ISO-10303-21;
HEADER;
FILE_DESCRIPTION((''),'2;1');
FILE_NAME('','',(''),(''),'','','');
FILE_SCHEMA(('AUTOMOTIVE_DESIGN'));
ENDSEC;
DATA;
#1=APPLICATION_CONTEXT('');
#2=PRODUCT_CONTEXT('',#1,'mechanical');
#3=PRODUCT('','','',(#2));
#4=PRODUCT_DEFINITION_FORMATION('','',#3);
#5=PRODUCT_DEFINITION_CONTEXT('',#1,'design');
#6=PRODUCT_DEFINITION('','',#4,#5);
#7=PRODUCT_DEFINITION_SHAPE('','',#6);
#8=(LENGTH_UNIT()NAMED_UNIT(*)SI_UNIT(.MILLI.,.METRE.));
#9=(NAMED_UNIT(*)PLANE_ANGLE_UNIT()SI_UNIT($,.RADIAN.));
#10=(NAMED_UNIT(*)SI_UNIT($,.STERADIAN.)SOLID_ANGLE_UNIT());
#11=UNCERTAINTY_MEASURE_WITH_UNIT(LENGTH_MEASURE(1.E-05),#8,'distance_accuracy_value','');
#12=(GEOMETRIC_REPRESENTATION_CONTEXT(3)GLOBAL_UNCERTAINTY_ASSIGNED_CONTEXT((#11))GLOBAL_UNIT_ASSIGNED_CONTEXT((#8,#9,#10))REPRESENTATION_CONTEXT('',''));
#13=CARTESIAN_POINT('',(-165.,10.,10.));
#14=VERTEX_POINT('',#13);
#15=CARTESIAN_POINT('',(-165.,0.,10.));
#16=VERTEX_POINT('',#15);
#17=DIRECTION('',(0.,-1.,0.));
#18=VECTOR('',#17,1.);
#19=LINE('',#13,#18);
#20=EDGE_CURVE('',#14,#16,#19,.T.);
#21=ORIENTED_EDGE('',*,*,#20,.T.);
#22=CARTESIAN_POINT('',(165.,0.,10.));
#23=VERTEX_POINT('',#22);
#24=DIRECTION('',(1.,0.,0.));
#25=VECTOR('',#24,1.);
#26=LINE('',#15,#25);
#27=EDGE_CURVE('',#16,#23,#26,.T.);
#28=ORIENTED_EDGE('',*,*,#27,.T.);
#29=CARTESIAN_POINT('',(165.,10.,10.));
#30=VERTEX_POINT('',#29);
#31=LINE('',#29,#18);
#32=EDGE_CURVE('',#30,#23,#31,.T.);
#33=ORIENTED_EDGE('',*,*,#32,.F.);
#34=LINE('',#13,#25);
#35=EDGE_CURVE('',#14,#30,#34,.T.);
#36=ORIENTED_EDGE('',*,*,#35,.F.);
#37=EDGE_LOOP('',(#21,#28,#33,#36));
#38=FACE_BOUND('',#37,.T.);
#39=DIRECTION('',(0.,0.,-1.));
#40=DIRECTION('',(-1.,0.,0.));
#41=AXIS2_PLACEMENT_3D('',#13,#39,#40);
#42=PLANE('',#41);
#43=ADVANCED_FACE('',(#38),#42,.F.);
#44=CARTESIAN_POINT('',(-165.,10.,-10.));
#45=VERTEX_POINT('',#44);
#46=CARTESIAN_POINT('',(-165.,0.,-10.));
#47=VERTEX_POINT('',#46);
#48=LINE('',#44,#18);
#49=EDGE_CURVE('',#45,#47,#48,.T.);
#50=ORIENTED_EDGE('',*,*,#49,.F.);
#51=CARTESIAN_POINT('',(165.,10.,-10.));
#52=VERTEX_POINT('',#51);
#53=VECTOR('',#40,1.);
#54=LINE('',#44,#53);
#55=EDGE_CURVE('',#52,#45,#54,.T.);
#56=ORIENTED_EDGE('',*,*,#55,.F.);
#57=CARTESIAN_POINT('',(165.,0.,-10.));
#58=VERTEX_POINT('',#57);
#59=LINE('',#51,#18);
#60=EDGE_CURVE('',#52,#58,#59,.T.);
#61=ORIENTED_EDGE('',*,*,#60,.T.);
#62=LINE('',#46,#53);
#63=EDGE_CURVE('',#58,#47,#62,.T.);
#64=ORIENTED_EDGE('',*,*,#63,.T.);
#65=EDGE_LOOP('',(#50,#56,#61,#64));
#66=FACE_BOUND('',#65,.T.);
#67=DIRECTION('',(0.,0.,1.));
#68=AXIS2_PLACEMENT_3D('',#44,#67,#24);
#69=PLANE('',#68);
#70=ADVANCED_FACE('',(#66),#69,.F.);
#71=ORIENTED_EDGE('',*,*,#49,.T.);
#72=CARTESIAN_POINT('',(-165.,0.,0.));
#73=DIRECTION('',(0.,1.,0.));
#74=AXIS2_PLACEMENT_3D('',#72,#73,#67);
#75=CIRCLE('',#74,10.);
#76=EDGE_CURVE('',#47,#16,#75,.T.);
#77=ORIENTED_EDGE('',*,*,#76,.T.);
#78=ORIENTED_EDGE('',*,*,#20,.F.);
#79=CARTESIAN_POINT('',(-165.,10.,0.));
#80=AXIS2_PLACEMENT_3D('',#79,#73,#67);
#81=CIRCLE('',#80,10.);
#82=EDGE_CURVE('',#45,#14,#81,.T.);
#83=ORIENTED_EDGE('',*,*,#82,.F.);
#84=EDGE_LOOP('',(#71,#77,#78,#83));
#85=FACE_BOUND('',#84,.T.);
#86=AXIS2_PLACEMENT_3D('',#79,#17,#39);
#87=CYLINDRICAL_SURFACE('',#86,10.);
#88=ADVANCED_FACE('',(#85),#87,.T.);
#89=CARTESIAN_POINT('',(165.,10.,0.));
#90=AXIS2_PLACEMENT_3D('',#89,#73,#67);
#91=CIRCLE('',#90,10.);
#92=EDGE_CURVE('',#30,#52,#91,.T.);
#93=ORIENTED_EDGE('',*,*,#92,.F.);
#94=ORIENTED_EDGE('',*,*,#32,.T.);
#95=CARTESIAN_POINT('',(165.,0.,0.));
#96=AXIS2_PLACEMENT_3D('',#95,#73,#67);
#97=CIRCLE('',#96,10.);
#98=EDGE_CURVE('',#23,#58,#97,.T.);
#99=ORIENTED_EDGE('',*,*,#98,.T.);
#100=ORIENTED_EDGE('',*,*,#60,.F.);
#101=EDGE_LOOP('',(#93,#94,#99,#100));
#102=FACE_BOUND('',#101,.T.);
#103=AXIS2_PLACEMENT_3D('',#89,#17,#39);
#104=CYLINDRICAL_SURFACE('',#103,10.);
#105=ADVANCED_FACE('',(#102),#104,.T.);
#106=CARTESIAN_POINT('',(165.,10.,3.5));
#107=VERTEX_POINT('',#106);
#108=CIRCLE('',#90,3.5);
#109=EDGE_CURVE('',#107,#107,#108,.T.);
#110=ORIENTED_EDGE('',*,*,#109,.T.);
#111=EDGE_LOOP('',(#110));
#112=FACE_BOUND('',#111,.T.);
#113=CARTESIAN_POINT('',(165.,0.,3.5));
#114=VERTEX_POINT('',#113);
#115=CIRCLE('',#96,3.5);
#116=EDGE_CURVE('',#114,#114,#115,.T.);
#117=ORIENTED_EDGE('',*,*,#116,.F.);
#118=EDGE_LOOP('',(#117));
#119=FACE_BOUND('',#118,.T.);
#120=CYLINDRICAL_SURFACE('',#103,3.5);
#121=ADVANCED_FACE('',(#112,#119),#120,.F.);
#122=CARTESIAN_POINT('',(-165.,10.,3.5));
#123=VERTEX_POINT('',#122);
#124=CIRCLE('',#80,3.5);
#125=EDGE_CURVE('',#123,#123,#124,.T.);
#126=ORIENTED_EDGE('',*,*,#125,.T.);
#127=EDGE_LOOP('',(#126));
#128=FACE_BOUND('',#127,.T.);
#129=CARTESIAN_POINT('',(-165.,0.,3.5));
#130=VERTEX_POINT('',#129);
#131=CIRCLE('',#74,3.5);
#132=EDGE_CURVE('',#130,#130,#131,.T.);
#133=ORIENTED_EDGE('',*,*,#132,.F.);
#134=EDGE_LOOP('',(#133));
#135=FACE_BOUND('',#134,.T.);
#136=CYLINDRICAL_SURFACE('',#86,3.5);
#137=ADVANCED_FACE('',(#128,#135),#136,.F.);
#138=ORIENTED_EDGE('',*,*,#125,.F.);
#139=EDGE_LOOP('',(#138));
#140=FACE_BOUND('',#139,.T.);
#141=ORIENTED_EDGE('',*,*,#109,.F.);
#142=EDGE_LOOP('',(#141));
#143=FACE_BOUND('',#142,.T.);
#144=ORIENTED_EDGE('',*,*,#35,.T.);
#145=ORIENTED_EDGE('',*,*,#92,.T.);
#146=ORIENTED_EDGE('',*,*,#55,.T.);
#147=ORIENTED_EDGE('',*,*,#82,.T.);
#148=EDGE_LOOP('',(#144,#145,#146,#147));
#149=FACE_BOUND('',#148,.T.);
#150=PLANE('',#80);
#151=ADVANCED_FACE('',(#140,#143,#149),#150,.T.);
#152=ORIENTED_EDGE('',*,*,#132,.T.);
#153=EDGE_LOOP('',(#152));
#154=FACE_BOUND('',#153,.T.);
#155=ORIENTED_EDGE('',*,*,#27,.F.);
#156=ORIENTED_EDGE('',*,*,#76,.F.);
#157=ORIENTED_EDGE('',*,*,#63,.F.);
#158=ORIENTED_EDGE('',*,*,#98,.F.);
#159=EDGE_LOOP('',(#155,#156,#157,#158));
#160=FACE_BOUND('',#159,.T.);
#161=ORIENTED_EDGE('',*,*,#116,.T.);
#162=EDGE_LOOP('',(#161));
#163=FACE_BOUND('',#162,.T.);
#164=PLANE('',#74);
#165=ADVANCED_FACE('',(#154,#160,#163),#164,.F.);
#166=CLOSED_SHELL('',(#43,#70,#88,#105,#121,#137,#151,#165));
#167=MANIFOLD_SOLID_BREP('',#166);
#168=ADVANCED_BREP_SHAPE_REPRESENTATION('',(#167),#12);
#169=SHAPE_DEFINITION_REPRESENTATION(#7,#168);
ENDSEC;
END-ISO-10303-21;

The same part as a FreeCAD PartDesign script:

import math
import FreeCAD as App
import Part
import Sketcher
from FreeCAD import Vector

doc = App.newDocument("Part")
body = doc.addObject("PartDesign::Body", "Body")

sketch1 = body.newObject("Sketcher::SketchObject", "Sketch")
sketch1.AttachmentSupport = (doc.getObject("XZ_Plane"), [""])
sketch1.MapMode = "FlatFace"
sketch1.addGeometry(Part.LineSegment(Vector(165, -10, 0), Vector(-165, -10, 0)), False)
sketch1.addGeometry(Part.ArcOfCircle(Part.Circle(Vector(-165, 0, 0), Vector(0, 0, 1), 10), math.radians(90), math.radians(270)), False)
sketch1.addGeometry(Part.LineSegment(Vector(-165, 10, 0), Vector(165, 10, 0)), False)
sketch1.addGeometry(Part.ArcOfCircle(Part.Circle(Vector(165, 0, 0), Vector(0, 0, 1), 10), math.radians(-90), math.radians(90)), False)
sketch1.addGeometry(Part.Circle(Vector(165, 0, 0), Vector(0, 0, 1), 3.5), False)
sketch1.addGeometry(Part.Circle(Vector(-165, 0, 0), Vector(0, 0, 1), 3.5), False)
sketch1.addConstraint(Sketcher.Constraint("Tangent", 0, 2, 1, 2))
sketch1.addConstraint(Sketcher.Constraint("Tangent", 1, 1, 2, 1))
sketch1.addConstraint(Sketcher.Constraint("Tangent", 2, 2, 3, 2))
sketch1.addConstraint(Sketcher.Constraint("Tangent", 3, 1, 0, 1))
sketch1.addConstraint(Sketcher.Constraint("Horizontal", 0))
sketch1.addConstraint(Sketcher.Constraint("Horizontal", 2))
sketch1.addConstraint(Sketcher.Constraint("Coincident", 4, 3, 3, 3))
sketch1.addConstraint(Sketcher.Constraint("Coincident", 5, 3, 1, 3))
sketch1.addConstraint(Sketcher.Constraint("Equal", 4, 5))
sketch1.addConstraint(Sketcher.Constraint("Symmetric", 1, 3, 3, 3, -1, 1))
sketch1.addConstraint(Sketcher.Constraint("Diameter", 4, 7.0))
sketch1.addConstraint(Sketcher.Constraint("Radius", 1, 10.0))
sketch1.addConstraint(Sketcher.Constraint("DistanceX", 0, 2, 0, 1, 330.0))
pad1 = body.newObject("PartDesign::Pad", "Pad")
pad1.Profile = sketch1
pad1.Length = 10
pad1.Reversed = True

doc.recompute()
